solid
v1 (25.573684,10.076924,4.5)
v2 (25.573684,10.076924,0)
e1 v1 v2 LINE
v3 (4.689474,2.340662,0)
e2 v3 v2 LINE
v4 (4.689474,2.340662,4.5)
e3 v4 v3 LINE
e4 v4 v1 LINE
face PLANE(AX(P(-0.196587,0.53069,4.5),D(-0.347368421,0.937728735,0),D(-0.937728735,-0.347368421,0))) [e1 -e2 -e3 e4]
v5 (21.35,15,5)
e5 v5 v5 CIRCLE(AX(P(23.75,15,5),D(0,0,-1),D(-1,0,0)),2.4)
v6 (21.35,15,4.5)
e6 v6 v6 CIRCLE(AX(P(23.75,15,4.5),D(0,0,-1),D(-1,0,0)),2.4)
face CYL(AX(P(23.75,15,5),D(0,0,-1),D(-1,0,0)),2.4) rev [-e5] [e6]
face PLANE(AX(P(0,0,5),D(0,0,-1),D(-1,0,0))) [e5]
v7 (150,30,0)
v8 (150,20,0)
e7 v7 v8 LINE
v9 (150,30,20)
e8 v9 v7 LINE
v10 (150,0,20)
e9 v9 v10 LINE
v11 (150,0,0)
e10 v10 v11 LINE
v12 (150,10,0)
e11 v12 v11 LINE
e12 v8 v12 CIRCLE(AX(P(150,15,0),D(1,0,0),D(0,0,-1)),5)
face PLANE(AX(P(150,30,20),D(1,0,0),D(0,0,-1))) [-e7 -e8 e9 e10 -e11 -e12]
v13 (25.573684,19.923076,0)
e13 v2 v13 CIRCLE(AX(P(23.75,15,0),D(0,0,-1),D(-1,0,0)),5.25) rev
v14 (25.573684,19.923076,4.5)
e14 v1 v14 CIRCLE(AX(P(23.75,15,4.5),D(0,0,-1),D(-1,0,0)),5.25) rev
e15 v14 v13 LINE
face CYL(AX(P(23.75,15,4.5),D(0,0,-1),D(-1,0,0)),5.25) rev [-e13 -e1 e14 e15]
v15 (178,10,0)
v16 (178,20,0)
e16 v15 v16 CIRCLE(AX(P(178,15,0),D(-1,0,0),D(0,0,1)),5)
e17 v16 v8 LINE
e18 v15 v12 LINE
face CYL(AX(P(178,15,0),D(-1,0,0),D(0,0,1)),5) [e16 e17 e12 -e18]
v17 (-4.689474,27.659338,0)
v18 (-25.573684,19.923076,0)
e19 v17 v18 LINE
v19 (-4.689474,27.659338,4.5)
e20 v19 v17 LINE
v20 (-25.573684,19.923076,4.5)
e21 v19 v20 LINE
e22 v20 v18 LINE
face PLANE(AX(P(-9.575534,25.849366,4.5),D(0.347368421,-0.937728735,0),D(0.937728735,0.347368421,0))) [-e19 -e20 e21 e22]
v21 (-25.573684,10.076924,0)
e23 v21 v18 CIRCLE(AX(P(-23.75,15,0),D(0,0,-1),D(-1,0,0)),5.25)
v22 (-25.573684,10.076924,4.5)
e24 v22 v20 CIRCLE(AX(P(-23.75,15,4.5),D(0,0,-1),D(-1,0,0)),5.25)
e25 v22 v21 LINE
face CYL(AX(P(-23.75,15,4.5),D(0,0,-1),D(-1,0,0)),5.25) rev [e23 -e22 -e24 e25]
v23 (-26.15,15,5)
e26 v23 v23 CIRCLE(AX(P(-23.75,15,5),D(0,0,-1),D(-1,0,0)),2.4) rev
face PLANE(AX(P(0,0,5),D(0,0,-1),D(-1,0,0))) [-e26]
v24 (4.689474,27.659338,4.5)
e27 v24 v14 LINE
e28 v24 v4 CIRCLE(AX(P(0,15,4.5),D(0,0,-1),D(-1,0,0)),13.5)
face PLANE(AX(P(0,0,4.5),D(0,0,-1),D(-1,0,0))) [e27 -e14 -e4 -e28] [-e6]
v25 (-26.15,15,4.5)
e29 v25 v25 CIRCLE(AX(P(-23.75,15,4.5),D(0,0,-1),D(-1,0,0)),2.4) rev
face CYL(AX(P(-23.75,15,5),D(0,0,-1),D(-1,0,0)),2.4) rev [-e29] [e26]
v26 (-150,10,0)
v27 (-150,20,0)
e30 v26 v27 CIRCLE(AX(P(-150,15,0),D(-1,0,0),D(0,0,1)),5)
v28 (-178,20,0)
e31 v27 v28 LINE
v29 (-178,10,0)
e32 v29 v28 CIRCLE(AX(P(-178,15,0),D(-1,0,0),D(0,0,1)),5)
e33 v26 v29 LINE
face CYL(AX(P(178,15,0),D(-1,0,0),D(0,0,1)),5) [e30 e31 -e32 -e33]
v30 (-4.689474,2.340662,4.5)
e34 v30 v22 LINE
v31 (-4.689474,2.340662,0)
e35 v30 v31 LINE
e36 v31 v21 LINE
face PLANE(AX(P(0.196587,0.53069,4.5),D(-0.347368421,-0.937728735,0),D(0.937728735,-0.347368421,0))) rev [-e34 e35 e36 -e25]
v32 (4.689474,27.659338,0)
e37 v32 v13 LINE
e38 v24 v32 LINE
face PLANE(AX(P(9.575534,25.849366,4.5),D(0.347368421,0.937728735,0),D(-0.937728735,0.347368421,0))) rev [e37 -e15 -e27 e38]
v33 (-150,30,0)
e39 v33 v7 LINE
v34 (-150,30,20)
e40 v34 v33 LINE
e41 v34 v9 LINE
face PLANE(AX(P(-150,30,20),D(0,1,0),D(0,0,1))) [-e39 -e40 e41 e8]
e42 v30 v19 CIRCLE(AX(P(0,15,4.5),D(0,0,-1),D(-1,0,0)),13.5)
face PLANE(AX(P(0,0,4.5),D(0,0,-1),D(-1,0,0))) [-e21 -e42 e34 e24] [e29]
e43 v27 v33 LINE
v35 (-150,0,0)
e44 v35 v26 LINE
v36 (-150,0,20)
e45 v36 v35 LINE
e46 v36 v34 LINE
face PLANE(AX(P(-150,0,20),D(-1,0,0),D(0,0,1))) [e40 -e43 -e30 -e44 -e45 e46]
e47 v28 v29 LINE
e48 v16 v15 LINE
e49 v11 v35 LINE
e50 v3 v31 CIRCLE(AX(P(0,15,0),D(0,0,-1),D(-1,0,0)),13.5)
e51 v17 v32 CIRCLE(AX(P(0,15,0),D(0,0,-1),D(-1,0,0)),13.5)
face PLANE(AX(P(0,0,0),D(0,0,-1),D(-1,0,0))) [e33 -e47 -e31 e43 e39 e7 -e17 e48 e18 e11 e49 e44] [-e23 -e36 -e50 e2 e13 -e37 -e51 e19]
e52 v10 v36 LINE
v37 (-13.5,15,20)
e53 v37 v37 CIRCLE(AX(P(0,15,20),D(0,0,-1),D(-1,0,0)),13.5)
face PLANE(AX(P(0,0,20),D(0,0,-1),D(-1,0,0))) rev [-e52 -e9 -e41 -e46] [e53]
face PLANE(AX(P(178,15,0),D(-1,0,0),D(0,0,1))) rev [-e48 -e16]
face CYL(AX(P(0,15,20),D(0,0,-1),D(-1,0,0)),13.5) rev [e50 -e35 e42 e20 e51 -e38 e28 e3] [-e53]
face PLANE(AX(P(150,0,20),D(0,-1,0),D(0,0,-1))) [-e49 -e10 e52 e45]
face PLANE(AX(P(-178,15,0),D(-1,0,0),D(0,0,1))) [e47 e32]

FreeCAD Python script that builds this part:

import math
import FreeCAD as App
import Part
import Sketcher
from FreeCAD import Vector


def add_polygon(sketch, points):
    """Adds a closed chain of lines whose ends are joined by coincident constraints."""
    first, n = sketch.GeometryCount, len(points)
    for a, b in zip(points, points[1:] + points[:1]):
        sketch.addGeometry(Part.LineSegment(App.Vector(*a, 0), App.Vector(*b, 0)), False)
    for i in range(n):
        sketch.addConstraint(Sketcher.Constraint("Coincident", first + i, 2, first + (i + 1) % n, 1))

doc = App.newDocument("Part")
params = doc.addObject("Spreadsheet::Sheet", "Params")
for row, (alias, value) in enumerate([
    ("sketch1_width", "300 mm"),
    ("sketch1_height", "30 mm"),
    ("pad1_length", "20 mm"),
    ("sketch2_radius", "5 mm"),
    ("pad2_length", "28 mm"),
    ("pad2_length2", "328 mm"),
    ("sketch3_diameter", "27 mm"),
    ("pocket1_length", "182.614977 mm"),
    ("sketch4_diameter", "4.8 mm"),
    ("sketch4_radius", "13.5 mm"),
    ("sketch4_radius2", "5.25 mm"),
    ("pocket2_length", "4.5 mm"),
    ("sketch5_diameter", "4.8 mm"),
    ("pocket3_length", "5 mm"),
], start=1):
    params.set(f"A{row}", alias)
    params.set(f"B{row}", "=" + value)
    params.setAlias(f"B{row}", alias)

body = doc.addObject("PartDesign::Body", "Body")

sketch1 = body.newObject("Sketcher::SketchObject", "Sketch")
sketch1.AttachmentSupport = (doc.getObject("XY_Plane"), [""])
sketch1.MapMode = "FlatFace"
add_polygon(sketch1, [(-150, 30), (-150, 0), (150, 0), (150, 30)])
sketch1.addConstraint([
    Sketcher.Constraint("Vertical", 0),
    Sketcher.Constraint("Horizontal", 1),
    Sketcher.Constraint("Vertical", 2),
    Sketcher.Constraint("Horizontal", 3),
    Sketcher.Constraint("Symmetric", 0, 2, 1, 2, -1, 1),
    Sketcher.Constraint("DistanceX", 1, 1, 1, 2, 300.0),
    Sketcher.Constraint("DistanceY", 0, 2, 0, 1, 30.0),
])
sketch1.setExpression("Constraints[9]", "Params.sketch1_width")
sketch1.setExpression("Constraints[10]", "Params.sketch1_height")
pad1 = body.newObject("PartDesign::Pad", "Pad")
pad1.Profile = sketch1
pad1.setExpression("Length", "Params.pad1_length")

sketch2 = body.newObject("Sketcher::SketchObject", "Sketch001")
sketch2.AttachmentSupport = (doc.getObject("YZ_Plane"), [""])
sketch2.MapMode = "FlatFace"
sketch2.AttachmentOffset = App.Placement(Vector(0, 0, -150), App.Rotation())
sketch2.addGeometry([
    Part.LineSegment(Vector(20, 0, 0), Vector(10, 0, 0)),
    Part.ArcOfCircle(Part.Circle(Vector(15, 0, 0), Vector(0, 0, 1), 5), math.radians(0), math.radians(180)),
], False)
sketch2.addConstraint([
    Sketcher.Constraint("Coincident", 0, 1, 1, 1),
    Sketcher.Constraint("Coincident", 1, 2, 0, 2),
    Sketcher.Constraint("Horizontal", 0),
    Sketcher.Constraint("PointOnObject", 1, 3, -1),
    Sketcher.Constraint("PointOnObject", 0, 1, -1),
    Sketcher.Constraint("Radius", 1, 5.0),
    Sketcher.Constraint("DistanceX", -1, 1, 1, 3, 15.0),
])
sketch2.setExpression("Constraints[5]", "Params.sketch2_radius")
pad2 = body.newObject("PartDesign::Pad", "Pad001")
pad2.Profile = sketch2
pad2.Type = "TwoLengths"
pad2.setExpression("Length", "Params.pad2_length")
pad2.setExpression("Length2", "Params.pad2_length2")
pad2.Reversed = True

sketch3 = body.newObject("Sketcher::SketchObject", "Sketch002")
sketch3.AttachmentSupport = (doc.getObject("XY_Plane"), [""])
sketch3.MapMode = "FlatFace"
sketch3.addGeometry(Part.Circle(Vector(0, 15, 0), Vector(0, 0, 1), 13.5), False)
sketch3.addConstraint([
    Sketcher.Constraint("PointOnObject", 0, 3, -2),
    Sketcher.Constraint("Diameter", 0, 27.0),
    Sketcher.Constraint("DistanceY", -1, 1, 0, 3, 15.0),
])
sketch3.setExpression("Constraints[1]", "Params.sketch3_diameter")
pocket1 = body.newObject("PartDesign::Pocket", "Pocket")
pocket1.Profile = sketch3
pocket1.setExpression("Length", "Params.pocket1_length")
pocket1.Reversed = True

sketch4 = body.newObject("Sketcher::SketchObject", "Sketch003")
sketch4.AttachmentSupport = (doc.getObject("XY_Plane"), [""])
sketch4.MapMode = "FlatFace"
sketch4.addGeometry([
    Part.LineSegment(Vector(-25.573684, 19.923076, 0), Vector(-4.689474, 27.659338, 0)),
    Part.ArcOfCircle(Part.Circle(Vector(0, 15, 0), Vector(0, 0, 1), 13.5), math.radians(110.32644), math.radians(249.67356)),
    Part.LineSegment(Vector(-4.689474, 2.340662, 0), Vector(-25.573684, 10.076924, 0)),
    Part.ArcOfCircle(Part.Circle(Vector(-23.75, 15, 0), Vector(0, 0, 1), 5.25), math.radians(110.32644), math.radians(249.67356)),
    Part.Circle(Vector(-23.75, 15, 0), Vector(0, 0, 1), 2.4),
    Part.ArcOfCircle(Part.Circle(Vector(0, 15, 0), Vector(0, 0, 1), 13.5), math.radians(-69.67356), math.radians(69.67356)),
    Part.LineSegment(Vector(4.689474, 27.659338, 0), Vector(25.573684, 19.923076, 0)),
    Part.ArcOfCircle(Part.Circle(Vector(23.75, 15, 0), Vector(0, 0, 1), 5.25), math.radians(-69.67356), math.radians(69.67356)),
    Part.LineSegment(Vector(25.573684, 10.076924, 0), Vector(4.689474, 2.340662, 0)),
    Part.Circle(Vector(23.75, 15, 0), Vector(0, 0, 1), 2.4),
], False)
sketch4.addConstraint([
    Sketcher.Constraint("Tangent", 0, 2, 1, 1),
    Sketcher.Constraint("Tangent", 1, 2, 2, 1),
    Sketcher.Constraint("Tangent", 2, 2, 3, 2),
    Sketcher.Constraint("Tangent", 3, 1, 0, 1),
    Sketcher.Constraint("Tangent", 5, 2, 6, 1),
    Sketcher.Constraint("Tangent", 6, 2, 7, 2),
    Sketcher.Constraint("Tangent", 7, 1, 8, 1),
    Sketcher.Constraint("Tangent", 8, 2, 5, 1),
    Sketcher.Constraint("Coincident", 4, 3, 3, 3),
    Sketcher.Constraint("Coincident", 5, 3, 1, 3),
    Sketcher.Constraint("Coincident", 9, 3, 7, 3),
    Sketcher.Constraint("Equal", 1, 5),
    Sketcher.Constraint("Equal", 3, 7),
    Sketcher.Constraint("Equal", 4, 9),
    Sketcher.Constraint("Symmetric", 3, 3, 7, 3, -2),
    Sketcher.Constraint("PointOnObject", 1, 3, -2),
    Sketcher.Constraint("Parallel", 2, 6),
    Sketcher.Constraint("Diameter", 4, 4.8),
    Sketcher.Constraint("Radius", 1, 13.5),
    Sketcher.Constraint("Radius", 3, 5.25),
    Sketcher.Constraint("DistanceY", -1, 1, 1, 3, 15.0),
    Sketcher.Constraint("DistanceX", 3, 3, 7, 3, 47.5),
])
sketch4.setExpression("Constraints[17]", "Params.sketch4_diameter")
sketch4.setExpression("Constraints[18]", "Params.sketch4_radius")
sketch4.setExpression("Constraints[19]", "Params.sketch4_radius2")
pocket2 = body.newObject("PartDesign::Pocket", "Pocket001")
pocket2.Profile = sketch4
pocket2.setExpression("Length", "Params.pocket2_length")
pocket2.Reversed = True

sketch5 = body.newObject("Sketcher::SketchObject", "Sketch004")
sketch5.AttachmentSupport = (doc.getObject("XY_Plane"), [""])
sketch5.MapMode = "FlatFace"
sketch5.addGeometry([
    Part.Circle(Vector(23.75, 15, 0), Vector(0, 0, 1), 2.4),
    Part.Circle(Vector(-23.75, 15, 0), Vector(0, 0, 1), 2.4),
], False)
sketch5.addConstraint([
    Sketcher.Constraint("Equal", 0, 1),
    Sketcher.Constraint("Symmetric", 0, 3, 1, 3, -2),
    Sketcher.Constraint("Diameter", 0, 4.8),
    Sketcher.Constraint("DistanceY", -1, 1, 0, 3, 15.0),
    Sketcher.Constraint("DistanceX", 1, 3, 0, 3, 47.5),
])
sketch5.setExpression("Constraints[2]", "Params.sketch5_diameter")
pocket3 = body.newObject("PartDesign::Pocket", "Pocket002")
pocket3.Profile = sketch5
pocket3.setExpression("Length", "Params.pocket3_length")
pocket3.Reversed = True

doc.recompute()
